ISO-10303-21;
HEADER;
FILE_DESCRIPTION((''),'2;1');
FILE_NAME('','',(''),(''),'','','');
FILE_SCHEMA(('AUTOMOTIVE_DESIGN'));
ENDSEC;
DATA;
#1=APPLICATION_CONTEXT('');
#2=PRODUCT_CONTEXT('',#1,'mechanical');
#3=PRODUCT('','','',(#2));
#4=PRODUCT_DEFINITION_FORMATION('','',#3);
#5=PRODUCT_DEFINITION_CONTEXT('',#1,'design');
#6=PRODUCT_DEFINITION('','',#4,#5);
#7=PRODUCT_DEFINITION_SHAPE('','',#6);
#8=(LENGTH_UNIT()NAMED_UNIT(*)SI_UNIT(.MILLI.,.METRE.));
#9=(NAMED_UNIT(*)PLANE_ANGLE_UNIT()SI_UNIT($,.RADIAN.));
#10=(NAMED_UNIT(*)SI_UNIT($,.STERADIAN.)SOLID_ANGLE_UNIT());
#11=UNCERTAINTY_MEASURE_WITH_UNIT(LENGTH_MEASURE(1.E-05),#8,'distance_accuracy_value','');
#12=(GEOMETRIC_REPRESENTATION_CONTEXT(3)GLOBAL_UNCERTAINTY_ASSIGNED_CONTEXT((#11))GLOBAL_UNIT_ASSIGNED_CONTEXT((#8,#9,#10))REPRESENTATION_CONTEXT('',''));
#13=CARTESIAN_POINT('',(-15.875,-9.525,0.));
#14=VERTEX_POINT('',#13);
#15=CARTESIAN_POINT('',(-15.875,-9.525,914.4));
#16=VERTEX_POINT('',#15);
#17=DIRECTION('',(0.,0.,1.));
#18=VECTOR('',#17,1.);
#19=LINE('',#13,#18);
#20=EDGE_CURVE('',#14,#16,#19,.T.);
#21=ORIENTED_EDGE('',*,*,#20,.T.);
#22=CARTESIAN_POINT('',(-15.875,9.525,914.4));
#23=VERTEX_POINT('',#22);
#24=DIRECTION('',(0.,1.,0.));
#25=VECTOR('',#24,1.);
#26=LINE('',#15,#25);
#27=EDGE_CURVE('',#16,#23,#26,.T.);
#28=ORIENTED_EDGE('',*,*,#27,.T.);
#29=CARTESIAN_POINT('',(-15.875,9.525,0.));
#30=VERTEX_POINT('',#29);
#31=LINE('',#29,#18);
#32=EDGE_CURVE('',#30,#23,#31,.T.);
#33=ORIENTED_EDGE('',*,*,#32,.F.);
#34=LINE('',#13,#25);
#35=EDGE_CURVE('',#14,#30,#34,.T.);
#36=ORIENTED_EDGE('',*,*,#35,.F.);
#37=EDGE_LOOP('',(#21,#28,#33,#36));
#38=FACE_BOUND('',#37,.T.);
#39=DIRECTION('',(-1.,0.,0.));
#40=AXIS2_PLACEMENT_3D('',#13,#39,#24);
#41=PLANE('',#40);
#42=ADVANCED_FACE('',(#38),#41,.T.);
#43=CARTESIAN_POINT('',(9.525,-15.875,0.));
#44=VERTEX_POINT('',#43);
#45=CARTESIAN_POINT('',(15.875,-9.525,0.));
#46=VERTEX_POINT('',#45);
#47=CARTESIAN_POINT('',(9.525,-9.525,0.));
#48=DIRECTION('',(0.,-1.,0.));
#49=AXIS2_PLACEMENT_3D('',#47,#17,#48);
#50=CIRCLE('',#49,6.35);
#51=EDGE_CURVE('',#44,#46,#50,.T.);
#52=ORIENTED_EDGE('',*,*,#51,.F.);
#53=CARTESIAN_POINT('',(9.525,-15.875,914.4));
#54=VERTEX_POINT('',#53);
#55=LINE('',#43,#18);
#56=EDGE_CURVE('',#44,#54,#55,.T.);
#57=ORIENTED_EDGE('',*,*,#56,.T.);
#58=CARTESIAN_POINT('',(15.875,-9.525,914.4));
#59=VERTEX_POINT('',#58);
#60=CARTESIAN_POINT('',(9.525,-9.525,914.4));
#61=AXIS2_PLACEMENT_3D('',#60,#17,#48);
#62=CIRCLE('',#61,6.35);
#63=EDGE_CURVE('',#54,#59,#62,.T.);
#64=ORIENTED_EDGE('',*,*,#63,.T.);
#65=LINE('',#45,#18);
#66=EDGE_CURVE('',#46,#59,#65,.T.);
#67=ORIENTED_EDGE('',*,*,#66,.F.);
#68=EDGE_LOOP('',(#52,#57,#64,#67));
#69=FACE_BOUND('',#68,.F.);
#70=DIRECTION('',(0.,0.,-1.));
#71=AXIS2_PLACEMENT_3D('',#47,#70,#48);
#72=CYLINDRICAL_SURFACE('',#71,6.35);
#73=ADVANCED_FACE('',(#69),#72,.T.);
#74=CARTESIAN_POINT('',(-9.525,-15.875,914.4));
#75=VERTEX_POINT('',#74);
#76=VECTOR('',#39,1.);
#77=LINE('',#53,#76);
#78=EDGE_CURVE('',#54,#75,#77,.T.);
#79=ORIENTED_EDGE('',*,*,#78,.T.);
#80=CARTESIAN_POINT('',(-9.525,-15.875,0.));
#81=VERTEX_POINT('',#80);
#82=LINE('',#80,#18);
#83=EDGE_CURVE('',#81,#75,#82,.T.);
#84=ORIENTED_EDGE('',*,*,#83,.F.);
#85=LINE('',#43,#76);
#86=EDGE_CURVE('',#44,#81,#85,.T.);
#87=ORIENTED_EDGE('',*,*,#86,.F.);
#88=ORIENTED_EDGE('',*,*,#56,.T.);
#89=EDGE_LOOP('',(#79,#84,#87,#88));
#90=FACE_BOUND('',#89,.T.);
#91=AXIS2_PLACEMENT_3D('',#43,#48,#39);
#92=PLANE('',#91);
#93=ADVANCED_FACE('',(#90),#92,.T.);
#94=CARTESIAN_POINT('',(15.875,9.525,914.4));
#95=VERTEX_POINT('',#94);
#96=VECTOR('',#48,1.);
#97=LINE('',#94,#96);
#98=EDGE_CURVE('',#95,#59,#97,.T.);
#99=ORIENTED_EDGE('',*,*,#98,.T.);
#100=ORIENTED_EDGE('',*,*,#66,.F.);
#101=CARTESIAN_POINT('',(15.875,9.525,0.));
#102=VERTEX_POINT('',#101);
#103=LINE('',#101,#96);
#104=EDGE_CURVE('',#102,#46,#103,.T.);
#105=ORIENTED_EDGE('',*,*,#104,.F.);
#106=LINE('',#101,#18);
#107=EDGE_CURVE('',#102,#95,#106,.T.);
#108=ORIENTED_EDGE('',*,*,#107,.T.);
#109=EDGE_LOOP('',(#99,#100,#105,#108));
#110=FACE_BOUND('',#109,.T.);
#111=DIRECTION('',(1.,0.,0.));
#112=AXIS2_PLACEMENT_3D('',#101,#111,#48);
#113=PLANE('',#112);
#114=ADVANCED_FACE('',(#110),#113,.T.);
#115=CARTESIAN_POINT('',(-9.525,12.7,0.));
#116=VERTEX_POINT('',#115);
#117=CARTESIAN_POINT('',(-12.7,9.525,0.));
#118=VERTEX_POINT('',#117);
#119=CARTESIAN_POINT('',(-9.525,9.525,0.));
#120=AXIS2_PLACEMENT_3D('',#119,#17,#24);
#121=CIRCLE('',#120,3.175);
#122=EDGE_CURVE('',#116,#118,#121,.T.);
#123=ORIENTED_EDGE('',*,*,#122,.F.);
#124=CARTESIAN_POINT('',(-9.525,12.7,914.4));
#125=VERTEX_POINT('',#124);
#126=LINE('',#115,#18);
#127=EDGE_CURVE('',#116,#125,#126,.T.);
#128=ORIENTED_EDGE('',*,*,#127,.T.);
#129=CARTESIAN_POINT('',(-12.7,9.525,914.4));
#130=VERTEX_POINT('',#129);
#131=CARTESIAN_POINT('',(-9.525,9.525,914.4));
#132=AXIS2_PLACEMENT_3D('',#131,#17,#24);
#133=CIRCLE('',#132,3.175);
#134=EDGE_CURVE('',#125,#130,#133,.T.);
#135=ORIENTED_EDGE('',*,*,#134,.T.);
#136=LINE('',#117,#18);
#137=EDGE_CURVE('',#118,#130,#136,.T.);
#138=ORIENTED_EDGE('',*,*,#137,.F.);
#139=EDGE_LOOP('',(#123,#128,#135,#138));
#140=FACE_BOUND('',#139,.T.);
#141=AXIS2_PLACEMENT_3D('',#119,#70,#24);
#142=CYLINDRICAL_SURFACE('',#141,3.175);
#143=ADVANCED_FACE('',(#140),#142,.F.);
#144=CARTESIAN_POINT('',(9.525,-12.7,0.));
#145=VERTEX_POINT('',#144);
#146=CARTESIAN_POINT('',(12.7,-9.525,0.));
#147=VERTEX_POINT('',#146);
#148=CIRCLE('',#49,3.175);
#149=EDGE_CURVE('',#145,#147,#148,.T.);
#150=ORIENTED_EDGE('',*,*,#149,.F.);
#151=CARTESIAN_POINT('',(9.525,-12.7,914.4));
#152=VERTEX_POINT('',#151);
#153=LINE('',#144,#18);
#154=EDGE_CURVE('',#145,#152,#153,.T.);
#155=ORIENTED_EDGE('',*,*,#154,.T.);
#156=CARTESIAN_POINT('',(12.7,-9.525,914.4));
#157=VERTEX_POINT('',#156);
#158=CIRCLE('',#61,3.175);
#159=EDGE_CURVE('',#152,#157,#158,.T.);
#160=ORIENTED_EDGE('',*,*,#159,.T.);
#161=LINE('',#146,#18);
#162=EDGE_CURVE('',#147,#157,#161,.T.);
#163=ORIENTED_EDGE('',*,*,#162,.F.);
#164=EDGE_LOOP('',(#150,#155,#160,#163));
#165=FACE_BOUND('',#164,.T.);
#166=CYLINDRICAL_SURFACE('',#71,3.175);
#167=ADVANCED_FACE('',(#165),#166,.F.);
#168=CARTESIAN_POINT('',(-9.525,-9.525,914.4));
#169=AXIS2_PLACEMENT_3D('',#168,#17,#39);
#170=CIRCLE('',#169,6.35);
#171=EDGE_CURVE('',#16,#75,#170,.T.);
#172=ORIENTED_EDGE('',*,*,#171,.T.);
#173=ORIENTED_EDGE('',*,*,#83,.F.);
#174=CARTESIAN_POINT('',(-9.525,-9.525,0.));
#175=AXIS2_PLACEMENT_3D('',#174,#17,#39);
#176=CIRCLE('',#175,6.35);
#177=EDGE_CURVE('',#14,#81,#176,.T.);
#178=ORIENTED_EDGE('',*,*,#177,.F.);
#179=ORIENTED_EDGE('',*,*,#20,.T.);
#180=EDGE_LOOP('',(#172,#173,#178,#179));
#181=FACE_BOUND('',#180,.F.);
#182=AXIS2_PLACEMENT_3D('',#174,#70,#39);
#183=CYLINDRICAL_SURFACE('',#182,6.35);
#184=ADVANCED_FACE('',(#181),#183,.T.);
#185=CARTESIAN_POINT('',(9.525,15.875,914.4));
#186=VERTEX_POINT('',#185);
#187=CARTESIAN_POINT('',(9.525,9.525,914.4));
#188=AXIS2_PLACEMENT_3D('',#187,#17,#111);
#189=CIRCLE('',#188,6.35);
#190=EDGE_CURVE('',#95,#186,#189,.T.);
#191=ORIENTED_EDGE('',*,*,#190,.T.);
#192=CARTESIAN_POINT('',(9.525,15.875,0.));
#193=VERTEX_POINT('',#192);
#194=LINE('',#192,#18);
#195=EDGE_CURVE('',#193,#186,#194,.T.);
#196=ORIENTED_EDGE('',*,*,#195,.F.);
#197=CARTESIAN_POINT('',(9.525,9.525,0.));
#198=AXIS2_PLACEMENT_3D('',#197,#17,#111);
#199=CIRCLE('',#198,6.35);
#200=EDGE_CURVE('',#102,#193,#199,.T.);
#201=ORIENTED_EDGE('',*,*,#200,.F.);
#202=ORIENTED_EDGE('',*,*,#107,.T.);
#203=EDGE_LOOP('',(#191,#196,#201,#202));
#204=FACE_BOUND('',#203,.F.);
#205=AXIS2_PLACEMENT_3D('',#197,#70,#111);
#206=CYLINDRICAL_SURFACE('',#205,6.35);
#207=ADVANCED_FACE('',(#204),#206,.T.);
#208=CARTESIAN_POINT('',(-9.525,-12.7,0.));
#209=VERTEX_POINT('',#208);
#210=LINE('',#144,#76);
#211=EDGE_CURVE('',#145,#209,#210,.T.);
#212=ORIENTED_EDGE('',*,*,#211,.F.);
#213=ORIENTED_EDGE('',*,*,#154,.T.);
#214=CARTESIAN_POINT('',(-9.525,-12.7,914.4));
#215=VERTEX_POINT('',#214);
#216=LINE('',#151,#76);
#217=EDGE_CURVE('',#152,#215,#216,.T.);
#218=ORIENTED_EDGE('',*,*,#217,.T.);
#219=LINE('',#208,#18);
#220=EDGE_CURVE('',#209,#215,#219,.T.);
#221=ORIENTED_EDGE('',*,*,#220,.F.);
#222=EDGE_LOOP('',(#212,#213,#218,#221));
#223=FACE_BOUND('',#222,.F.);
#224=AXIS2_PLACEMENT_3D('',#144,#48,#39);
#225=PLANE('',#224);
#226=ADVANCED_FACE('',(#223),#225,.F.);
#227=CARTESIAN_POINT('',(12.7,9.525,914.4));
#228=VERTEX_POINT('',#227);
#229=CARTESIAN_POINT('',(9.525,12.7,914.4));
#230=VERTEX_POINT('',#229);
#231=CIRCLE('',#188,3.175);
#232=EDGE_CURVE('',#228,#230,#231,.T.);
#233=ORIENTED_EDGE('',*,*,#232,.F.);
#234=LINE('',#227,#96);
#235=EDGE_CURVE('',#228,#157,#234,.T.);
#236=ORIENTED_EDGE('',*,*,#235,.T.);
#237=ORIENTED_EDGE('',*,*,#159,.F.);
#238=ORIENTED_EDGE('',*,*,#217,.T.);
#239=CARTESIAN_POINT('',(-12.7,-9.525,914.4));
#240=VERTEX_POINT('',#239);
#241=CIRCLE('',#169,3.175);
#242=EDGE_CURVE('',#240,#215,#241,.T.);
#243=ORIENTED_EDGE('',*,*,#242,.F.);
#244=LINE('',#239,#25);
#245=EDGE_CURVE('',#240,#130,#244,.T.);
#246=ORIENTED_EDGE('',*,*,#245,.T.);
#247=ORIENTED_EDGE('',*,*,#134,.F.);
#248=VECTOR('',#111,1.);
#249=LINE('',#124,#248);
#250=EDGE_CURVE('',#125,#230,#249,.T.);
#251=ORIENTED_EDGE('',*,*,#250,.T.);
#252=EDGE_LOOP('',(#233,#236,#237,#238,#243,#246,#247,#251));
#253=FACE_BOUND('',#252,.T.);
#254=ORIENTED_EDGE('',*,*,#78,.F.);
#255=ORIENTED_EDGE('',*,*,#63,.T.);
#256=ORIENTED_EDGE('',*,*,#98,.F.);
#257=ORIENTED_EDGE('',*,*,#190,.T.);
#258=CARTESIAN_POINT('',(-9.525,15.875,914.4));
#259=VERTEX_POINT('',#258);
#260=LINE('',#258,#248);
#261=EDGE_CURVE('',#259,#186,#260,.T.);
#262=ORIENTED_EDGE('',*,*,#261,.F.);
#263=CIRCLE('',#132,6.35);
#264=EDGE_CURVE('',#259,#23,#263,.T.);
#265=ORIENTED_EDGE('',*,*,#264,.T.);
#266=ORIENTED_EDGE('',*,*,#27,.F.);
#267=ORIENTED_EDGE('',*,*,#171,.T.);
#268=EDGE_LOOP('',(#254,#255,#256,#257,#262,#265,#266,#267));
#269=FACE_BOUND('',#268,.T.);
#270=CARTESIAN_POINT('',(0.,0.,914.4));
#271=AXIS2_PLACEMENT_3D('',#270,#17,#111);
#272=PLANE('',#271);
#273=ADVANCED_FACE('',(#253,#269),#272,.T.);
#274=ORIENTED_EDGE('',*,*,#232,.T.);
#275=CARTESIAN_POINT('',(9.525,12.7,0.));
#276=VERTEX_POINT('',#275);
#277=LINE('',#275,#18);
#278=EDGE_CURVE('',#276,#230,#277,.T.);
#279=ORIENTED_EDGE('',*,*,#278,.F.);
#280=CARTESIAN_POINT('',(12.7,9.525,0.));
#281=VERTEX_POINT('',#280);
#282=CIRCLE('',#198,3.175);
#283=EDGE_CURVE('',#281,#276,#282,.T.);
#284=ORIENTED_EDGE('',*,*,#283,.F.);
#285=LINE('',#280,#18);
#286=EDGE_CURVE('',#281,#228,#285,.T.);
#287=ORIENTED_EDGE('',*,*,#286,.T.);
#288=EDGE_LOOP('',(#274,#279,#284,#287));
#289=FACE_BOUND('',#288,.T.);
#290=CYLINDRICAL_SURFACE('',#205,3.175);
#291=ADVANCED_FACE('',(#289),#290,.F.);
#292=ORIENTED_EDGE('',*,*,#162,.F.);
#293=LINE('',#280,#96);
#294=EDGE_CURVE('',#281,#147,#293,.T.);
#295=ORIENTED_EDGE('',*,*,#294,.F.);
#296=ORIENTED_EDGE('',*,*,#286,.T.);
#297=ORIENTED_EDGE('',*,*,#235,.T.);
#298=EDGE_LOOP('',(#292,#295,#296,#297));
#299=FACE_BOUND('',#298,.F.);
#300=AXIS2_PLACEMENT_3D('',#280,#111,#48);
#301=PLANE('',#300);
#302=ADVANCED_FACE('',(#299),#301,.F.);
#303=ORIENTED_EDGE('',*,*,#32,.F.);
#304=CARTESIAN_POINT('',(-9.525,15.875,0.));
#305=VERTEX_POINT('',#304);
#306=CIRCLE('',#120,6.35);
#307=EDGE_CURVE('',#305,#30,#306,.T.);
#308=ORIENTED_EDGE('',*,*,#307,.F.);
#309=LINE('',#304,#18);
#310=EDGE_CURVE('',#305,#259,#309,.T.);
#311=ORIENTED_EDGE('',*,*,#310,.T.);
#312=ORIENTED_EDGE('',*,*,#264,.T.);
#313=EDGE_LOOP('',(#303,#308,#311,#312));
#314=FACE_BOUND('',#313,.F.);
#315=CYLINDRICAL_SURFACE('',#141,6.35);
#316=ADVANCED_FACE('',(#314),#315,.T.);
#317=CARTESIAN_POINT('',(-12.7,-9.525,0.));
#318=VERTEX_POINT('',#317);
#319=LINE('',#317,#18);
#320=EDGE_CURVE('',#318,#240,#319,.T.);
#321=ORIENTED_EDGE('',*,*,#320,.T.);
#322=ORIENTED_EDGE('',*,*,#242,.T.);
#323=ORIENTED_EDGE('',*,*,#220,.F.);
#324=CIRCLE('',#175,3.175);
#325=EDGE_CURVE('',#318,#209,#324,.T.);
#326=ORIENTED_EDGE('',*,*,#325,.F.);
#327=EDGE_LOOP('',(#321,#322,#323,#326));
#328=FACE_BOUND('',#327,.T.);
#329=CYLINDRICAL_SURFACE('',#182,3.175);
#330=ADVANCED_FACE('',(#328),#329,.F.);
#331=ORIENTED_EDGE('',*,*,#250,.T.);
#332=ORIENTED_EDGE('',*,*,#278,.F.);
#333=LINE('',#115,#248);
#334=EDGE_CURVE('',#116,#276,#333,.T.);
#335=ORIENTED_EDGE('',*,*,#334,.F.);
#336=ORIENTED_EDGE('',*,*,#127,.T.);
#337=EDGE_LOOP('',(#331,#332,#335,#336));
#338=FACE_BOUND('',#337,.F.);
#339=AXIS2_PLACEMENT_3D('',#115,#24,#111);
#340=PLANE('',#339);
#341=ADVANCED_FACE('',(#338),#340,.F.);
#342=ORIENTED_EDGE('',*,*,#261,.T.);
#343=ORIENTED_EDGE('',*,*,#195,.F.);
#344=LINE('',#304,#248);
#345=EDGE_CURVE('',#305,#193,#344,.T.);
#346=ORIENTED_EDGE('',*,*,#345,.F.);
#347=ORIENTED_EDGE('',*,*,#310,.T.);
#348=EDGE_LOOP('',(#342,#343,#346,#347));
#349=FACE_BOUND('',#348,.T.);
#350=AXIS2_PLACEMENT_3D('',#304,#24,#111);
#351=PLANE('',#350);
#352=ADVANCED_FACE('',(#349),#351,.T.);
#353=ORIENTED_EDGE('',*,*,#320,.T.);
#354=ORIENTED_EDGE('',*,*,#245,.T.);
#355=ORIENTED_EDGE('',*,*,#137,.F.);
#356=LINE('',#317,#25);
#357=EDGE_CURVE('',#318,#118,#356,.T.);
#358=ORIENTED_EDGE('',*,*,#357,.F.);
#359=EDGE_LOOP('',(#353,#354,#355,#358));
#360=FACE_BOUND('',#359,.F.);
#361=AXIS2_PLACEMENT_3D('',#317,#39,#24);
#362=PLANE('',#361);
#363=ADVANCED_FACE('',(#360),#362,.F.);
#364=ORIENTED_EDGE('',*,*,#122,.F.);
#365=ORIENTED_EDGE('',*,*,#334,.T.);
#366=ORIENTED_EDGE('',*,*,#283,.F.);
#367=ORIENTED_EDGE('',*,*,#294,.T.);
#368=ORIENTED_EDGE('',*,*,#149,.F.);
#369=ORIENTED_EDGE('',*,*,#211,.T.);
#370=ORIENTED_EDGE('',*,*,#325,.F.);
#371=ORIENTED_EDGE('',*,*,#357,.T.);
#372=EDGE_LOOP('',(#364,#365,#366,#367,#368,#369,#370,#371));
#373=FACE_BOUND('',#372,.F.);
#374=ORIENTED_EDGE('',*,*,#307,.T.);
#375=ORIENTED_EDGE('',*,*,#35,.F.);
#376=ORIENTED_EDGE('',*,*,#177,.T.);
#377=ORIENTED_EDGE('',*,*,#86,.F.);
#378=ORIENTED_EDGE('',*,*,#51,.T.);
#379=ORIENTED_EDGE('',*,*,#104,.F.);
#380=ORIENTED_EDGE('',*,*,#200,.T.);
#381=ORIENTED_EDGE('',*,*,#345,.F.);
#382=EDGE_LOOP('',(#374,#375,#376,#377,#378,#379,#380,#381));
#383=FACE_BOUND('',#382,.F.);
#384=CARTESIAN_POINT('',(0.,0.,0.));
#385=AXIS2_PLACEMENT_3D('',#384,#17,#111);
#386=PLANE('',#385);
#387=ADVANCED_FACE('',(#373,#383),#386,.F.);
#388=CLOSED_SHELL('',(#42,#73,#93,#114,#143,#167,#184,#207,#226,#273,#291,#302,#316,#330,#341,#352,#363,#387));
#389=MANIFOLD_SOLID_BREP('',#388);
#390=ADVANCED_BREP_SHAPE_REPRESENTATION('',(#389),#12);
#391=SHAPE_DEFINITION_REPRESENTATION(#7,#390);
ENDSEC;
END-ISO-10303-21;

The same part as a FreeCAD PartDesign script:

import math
import FreeCAD as App
import Part
import Sketcher

V = App.Vector
Q = App.Units.Quantity

doc = App.newDocument("Part")
body = doc.addObject("PartDesign::Body", "Body")

sketch1 = body.newObject("Sketcher::SketchObject", "Sketch")
sketch1.AttachmentSupport = (doc.getObject("XY_Plane"), [""])
sketch1.MapMode = "FlatFace"
sketch1.addGeometry([
    Part.LineSegment(V(-15.875, 9.525, 0), V(-15.875, -9.525, 0)),
    Part.ArcOfCircle(Part.Circle(V(-9.525, -9.525, 0), V(0, 0, 1), 6.35), math.radians(180), math.radians(270)),
    Part.LineSegment(V(-9.525, -15.875, 0), V(9.525, -15.875, 0)),
    Part.ArcOfCircle(Part.Circle(V(9.525, -9.525, 0), V(0, 0, 1), 6.35), math.radians(-90), math.radians(0)),
    Part.LineSegment(V(15.875, -9.525, 0), V(15.875, 9.525, 0)),
    Part.ArcOfCircle(Part.Circle(V(9.525, 9.525, 0), V(0, 0, 1), 6.35), math.radians(0), math.radians(90)),
    Part.LineSegment(V(9.525, 15.875, 0), V(-9.525, 15.875, 0)),
    Part.ArcOfCircle(Part.Circle(V(-9.525, 9.525, 0), V(0, 0, 1), 6.35), math.radians(90), math.radians(180)),
    Part.ArcOfCircle(Part.Circle(V(-9.525, 9.525, 0), V(0, 0, 1), 3.175), math.radians(90), math.radians(180)),
    Part.LineSegment(V(-9.525, 12.7, 0), V(9.525, 12.7, 0)),
    Part.ArcOfCircle(Part.Circle(V(9.525, 9.525, 0), V(0, 0, 1), 3.175), math.radians(0), math.radians(90)),
    Part.LineSegment(V(12.7, 9.525, 0), V(12.7, -9.525, 0)),
    Part.ArcOfCircle(Part.Circle(V(9.525, -9.525, 0), V(0, 0, 1), 3.175), math.radians(-90), math.radians(0)),
    Part.LineSegment(V(9.525, -12.7, 0), V(-9.525, -12.7, 0)),
    Part.ArcOfCircle(Part.Circle(V(-9.525, -9.525, 0), V(0, 0, 1), 3.175), math.radians(180), math.radians(270)),
    Part.LineSegment(V(-12.7, -9.525, 0), V(-12.7, 9.525, 0)),
], False)
sketch1.addConstraint([
    Sketcher.Constraint("Tangent", 0, 2, 1, 1),
    Sketcher.Constraint("Tangent", 1, 2, 2, 1),
    Sketcher.Constraint("Tangent", 2, 2, 3, 1),
    Sketcher.Constraint("Tangent", 3, 2, 4, 1),
    Sketcher.Constraint("Tangent", 4, 2, 5, 1),
    Sketcher.Constraint("Tangent", 5, 2, 6, 1),
    Sketcher.Constraint("Tangent", 6, 2, 7, 1),
    Sketcher.Constraint("Tangent", 7, 2, 0, 1),
    Sketcher.Constraint("Tangent", 8, 1, 9, 1),
    Sketcher.Constraint("Tangent", 9, 2, 10, 2),
    Sketcher.Constraint("Tangent", 10, 1, 11, 1),
    Sketcher.Constraint("Tangent", 11, 2, 12, 2),
    Sketcher.Constraint("Tangent", 12, 1, 13, 1),
    Sketcher.Constraint("Tangent", 13, 2, 14, 2),
    Sketcher.Constraint("Tangent", 14, 1, 15, 1),
    Sketcher.Constraint("Tangent", 15, 2, 8, 2),
    Sketcher.Constraint("Vertical", 0),
    Sketcher.Constraint("Horizontal", 2),
    Sketcher.Constraint("Vertical", 4),
    Sketcher.Constraint("Horizontal", 6),
    Sketcher.Constraint("Horizontal", 9),
    Sketcher.Constraint("Vertical", 11),
    Sketcher.Constraint("Horizontal", 13),
    Sketcher.Constraint("Vertical", 15),
    Sketcher.Constraint("Coincident", 8, 3, 7, 3),
    Sketcher.Constraint("Coincident", 10, 3, 5, 3),
    Sketcher.Constraint("Coincident", 12, 3, 3, 3),
    Sketcher.Constraint("Equal", 1, 3),
    Sketcher.Constraint("Equal", 3, 5),
    Sketcher.Constraint("Equal", 5, 7),
    Sketcher.Constraint("Equal", 12, 14),
    Sketcher.Constraint("Symmetric", 1, 3, 5, 3, -1, 1),
    Sketcher.Constraint("Equal", 13, 0),
    Sketcher.Constraint("Radius", 1, Q("0.25 in")),
    Sketcher.Constraint("Radius", 8, Q("0.125 in")),
    Sketcher.Constraint("DistanceX", 0, 2, -1, 1, Q("0.625 in")),
])
pad1 = body.newObject("PartDesign::Pad", "Pad")
pad1.Profile = sketch1
pad1.Length = Q("36 in")

doc.recompute()
